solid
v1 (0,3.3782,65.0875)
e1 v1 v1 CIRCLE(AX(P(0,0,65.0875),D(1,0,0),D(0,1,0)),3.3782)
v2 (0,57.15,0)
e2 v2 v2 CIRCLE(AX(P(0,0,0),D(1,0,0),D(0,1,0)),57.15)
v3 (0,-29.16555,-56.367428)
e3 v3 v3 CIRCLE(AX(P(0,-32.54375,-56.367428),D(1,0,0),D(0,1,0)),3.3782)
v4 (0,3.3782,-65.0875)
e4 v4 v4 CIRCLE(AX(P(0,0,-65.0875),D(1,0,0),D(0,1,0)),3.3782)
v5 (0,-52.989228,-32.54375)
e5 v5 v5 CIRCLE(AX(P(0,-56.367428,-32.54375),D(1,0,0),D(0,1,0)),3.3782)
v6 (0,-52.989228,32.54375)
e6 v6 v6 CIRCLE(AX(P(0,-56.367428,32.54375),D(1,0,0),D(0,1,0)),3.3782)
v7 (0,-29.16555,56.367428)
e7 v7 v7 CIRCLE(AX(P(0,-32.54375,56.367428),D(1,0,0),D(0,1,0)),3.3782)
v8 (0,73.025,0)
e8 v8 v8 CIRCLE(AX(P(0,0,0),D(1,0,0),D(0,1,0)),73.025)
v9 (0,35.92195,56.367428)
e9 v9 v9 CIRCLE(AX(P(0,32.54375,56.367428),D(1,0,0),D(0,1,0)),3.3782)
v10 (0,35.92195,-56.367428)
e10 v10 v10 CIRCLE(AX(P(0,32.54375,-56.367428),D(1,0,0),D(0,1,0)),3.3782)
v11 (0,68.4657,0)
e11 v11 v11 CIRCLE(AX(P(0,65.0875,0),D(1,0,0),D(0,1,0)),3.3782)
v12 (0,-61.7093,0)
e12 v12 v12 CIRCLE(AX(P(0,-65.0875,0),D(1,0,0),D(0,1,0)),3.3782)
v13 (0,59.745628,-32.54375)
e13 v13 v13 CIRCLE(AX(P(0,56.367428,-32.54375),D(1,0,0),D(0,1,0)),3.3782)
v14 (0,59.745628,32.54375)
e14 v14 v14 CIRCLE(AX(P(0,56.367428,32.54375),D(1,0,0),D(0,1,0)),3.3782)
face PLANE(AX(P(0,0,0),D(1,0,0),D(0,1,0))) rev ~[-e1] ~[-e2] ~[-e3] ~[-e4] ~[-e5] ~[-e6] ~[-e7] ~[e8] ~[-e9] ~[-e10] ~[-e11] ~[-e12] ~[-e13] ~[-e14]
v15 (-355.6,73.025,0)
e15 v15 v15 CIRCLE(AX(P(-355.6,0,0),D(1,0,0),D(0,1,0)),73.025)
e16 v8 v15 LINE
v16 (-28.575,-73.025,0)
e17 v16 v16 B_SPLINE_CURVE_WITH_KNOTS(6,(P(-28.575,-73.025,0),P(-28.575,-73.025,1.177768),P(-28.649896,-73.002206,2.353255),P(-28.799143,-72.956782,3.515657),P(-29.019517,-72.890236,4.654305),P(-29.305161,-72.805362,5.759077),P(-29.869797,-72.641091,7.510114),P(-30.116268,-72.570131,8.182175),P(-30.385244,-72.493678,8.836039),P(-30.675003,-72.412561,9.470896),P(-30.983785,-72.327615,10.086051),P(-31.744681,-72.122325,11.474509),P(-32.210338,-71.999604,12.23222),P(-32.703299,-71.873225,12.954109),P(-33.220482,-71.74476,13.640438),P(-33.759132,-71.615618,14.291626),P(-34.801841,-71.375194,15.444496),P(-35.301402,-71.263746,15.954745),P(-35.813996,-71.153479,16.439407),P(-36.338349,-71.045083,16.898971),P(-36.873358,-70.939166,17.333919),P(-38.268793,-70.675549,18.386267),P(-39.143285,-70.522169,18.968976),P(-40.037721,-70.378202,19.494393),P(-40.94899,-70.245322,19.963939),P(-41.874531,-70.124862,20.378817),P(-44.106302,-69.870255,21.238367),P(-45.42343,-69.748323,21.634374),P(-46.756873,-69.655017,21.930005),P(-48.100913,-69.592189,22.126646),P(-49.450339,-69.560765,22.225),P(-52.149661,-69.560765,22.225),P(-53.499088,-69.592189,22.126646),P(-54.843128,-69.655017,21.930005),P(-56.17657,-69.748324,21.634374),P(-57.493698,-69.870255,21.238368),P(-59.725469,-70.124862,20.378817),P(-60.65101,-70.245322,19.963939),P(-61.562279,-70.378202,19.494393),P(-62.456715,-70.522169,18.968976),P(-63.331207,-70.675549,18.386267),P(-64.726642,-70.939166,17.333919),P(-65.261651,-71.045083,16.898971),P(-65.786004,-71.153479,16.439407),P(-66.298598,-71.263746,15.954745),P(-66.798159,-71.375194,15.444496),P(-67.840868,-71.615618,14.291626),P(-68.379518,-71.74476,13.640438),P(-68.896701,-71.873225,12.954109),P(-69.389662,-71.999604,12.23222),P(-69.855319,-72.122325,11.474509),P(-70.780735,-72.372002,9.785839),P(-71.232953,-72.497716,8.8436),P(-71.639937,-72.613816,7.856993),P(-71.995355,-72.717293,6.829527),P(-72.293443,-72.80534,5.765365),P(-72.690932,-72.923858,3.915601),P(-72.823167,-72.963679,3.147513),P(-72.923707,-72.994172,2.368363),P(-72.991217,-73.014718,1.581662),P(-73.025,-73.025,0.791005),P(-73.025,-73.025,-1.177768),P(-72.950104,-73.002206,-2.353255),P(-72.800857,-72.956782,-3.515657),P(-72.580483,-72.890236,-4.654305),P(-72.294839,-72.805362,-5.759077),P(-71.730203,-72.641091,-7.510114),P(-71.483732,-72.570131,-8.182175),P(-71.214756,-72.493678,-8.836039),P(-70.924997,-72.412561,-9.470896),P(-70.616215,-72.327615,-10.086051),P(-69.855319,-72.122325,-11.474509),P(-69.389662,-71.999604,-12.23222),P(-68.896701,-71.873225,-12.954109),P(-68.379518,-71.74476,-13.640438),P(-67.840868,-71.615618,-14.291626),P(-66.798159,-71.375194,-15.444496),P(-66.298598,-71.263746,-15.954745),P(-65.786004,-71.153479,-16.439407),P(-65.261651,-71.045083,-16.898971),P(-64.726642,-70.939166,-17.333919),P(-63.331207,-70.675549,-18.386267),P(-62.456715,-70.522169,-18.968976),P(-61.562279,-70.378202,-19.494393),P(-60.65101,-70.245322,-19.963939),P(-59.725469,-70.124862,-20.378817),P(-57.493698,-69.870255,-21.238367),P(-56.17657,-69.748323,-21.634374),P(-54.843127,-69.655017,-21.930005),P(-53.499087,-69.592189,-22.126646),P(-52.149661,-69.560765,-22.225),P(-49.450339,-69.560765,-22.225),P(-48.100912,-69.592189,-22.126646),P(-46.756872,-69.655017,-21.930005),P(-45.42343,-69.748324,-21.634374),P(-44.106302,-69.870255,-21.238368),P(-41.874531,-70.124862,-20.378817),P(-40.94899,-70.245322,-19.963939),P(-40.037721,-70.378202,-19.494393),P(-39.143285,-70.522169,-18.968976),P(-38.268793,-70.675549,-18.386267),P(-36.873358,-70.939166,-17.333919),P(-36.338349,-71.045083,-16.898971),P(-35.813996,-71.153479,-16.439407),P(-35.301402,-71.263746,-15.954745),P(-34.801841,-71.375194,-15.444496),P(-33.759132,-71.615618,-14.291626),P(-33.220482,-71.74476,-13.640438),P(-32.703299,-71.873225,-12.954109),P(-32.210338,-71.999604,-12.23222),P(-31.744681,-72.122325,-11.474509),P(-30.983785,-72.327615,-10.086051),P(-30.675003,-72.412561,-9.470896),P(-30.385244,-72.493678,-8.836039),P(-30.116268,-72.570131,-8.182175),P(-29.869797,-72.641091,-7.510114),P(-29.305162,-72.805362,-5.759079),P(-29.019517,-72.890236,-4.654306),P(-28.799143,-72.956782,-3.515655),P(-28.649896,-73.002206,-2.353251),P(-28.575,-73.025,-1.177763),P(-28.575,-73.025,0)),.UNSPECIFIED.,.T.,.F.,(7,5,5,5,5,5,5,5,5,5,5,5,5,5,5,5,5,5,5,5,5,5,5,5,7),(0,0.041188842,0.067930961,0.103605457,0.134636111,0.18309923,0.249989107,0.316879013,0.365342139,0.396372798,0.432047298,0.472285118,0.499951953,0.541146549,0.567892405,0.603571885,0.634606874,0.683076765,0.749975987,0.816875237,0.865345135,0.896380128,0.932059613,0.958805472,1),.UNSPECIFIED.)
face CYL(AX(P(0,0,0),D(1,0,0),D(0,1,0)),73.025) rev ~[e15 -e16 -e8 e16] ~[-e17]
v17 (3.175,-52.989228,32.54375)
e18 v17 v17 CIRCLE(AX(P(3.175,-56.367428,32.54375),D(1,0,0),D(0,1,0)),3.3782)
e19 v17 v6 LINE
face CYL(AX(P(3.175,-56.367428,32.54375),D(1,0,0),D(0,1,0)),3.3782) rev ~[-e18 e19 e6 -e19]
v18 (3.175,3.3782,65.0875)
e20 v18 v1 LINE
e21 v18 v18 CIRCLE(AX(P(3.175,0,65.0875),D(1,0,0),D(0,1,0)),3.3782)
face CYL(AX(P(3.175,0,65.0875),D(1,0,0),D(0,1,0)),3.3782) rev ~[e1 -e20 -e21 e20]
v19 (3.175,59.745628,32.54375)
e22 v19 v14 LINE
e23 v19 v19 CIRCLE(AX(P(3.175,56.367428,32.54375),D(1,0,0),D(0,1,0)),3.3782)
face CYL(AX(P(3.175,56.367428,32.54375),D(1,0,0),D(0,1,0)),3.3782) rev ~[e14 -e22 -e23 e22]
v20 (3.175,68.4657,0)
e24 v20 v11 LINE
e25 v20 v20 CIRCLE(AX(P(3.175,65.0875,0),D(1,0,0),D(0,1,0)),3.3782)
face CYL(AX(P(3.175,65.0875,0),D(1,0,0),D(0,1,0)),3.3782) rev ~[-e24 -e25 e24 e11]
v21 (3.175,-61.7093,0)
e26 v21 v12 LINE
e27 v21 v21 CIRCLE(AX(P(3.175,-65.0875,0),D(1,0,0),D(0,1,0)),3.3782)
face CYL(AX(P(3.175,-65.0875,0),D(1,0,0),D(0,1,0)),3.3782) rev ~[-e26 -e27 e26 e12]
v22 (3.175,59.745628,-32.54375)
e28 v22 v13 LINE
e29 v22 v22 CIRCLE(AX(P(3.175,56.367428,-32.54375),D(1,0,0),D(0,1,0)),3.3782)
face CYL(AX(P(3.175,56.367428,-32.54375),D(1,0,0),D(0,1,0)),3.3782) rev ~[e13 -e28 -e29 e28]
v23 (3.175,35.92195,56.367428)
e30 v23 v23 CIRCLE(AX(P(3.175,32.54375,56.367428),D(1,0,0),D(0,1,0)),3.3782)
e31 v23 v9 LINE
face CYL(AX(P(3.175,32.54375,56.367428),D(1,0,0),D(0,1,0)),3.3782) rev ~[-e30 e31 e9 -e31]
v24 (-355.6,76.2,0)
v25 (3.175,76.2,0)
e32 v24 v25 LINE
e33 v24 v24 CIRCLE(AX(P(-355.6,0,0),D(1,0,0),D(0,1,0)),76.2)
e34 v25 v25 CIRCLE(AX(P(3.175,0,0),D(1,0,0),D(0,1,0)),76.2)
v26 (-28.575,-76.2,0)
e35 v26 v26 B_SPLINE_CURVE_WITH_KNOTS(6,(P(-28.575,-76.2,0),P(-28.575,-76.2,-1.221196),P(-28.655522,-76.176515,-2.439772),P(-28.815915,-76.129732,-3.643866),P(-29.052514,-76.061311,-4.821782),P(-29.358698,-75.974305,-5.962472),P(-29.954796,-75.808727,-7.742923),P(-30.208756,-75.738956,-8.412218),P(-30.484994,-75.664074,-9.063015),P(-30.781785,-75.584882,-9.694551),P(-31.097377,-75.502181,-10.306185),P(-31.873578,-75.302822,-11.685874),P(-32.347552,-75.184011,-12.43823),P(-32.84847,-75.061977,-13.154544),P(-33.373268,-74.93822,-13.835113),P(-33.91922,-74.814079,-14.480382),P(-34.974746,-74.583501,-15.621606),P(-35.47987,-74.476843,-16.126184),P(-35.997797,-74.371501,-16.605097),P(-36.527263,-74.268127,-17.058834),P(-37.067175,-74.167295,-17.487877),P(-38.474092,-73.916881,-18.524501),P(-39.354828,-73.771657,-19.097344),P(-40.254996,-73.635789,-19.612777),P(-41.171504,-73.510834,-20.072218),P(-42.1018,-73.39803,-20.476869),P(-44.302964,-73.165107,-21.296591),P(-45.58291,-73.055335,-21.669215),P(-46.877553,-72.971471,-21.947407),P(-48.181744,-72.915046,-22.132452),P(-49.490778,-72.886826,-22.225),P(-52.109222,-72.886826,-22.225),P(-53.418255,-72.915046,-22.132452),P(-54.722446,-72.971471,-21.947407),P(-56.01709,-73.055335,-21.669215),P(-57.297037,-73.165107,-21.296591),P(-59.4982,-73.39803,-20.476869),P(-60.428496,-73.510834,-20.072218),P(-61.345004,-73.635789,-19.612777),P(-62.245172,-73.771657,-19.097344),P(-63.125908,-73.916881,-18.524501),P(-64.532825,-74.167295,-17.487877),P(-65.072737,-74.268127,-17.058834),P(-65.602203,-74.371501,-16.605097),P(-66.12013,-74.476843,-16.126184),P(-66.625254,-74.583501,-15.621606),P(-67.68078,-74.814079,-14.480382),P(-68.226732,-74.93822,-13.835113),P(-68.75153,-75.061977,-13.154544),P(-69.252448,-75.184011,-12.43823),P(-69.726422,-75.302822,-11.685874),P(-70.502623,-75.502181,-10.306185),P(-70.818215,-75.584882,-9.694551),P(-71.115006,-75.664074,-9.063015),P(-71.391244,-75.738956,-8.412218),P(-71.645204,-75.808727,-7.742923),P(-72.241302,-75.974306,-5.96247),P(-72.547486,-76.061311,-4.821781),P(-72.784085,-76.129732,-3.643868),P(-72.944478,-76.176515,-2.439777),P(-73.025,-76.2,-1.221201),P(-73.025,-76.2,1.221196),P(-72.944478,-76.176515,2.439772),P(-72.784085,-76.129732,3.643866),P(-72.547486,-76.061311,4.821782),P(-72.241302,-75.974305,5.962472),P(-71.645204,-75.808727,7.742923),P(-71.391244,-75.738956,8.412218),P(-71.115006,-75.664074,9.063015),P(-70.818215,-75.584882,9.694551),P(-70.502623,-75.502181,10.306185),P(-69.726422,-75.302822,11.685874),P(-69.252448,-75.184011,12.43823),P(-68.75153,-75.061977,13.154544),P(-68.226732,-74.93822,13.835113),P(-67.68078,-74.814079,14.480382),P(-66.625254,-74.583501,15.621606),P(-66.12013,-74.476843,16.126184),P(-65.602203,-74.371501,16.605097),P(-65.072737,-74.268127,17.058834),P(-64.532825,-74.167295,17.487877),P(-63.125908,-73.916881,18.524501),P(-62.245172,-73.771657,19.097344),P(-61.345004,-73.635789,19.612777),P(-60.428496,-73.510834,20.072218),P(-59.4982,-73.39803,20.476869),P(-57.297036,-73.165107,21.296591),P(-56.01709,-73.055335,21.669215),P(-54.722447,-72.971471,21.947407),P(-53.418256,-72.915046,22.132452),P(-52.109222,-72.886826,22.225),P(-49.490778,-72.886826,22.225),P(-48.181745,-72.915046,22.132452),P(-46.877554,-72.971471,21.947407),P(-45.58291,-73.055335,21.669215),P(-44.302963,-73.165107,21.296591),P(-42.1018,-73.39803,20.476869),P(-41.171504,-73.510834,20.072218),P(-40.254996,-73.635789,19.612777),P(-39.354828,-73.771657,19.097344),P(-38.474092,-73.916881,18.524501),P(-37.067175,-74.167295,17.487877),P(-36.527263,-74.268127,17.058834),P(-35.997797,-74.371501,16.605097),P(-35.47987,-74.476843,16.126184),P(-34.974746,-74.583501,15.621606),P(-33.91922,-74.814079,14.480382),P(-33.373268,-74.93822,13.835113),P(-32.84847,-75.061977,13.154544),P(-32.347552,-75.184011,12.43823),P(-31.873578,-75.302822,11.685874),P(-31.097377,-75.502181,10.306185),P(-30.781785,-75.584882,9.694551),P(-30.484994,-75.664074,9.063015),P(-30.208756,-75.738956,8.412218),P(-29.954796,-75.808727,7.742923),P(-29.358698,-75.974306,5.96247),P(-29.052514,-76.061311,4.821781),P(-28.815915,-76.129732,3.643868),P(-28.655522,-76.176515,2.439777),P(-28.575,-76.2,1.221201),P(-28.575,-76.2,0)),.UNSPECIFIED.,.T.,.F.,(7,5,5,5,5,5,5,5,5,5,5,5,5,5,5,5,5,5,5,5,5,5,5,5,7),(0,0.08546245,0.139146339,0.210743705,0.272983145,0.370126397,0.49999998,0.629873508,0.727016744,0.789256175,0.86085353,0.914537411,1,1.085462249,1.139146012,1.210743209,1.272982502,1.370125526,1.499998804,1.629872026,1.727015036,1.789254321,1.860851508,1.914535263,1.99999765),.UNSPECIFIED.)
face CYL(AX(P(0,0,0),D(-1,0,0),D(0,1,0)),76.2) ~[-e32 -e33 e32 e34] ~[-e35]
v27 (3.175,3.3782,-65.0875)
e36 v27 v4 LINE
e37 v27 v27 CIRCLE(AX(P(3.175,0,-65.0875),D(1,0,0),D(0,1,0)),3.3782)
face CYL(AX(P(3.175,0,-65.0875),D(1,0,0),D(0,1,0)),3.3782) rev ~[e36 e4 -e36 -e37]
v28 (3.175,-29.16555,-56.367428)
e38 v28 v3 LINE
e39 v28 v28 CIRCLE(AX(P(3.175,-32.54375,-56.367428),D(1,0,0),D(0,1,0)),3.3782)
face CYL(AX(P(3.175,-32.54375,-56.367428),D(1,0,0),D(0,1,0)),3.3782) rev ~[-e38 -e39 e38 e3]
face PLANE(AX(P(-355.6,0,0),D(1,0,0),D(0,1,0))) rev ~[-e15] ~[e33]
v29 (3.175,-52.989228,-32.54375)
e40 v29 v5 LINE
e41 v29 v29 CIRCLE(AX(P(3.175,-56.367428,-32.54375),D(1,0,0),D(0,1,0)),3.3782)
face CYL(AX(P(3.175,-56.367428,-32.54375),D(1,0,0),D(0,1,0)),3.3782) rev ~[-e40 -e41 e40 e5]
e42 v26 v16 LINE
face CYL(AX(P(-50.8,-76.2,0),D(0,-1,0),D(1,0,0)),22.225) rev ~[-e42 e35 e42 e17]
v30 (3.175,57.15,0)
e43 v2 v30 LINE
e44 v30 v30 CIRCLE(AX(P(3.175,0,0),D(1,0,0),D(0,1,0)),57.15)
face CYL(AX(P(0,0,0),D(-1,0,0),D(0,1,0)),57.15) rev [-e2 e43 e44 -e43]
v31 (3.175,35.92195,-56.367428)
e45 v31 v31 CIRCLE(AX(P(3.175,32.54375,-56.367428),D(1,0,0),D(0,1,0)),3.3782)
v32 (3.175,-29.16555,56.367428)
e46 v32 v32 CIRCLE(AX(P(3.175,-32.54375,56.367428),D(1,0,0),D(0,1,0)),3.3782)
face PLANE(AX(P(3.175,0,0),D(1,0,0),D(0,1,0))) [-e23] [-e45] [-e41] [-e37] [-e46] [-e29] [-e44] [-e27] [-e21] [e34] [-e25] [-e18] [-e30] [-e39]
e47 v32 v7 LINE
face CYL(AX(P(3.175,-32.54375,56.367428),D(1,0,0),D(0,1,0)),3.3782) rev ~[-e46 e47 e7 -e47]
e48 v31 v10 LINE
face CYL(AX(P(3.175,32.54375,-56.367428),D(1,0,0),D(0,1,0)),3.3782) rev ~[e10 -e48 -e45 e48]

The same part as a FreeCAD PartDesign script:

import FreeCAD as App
import Part
import Sketcher
from FreeCAD import Vector
Q = App.Units.Quantity

doc = App.newDocument("Part")
params = doc.addObject("Spreadsheet::Sheet", "Params")
for row, (alias, value) in enumerate([
    ("sketch1_diameter", "6 in"),
    ("sketch1_diameter2", "5.75 in"),
    ("pad1_length", "14 in"),
    ("sketch2_diameter", "6 in"),
    ("sketch2_diameter2", "4.5 in"),
    ("pad2_length", "0.125 in"),
    ("sketch3_diameter", "0.266 in"),
    ("sketch4_diameter", "1.75 in"),
    ("pocket2_length", "7.639235 mm"),
], start=1):
    params.set(f"A{row}", alias)
    params.set(f"B{row}", "=" + value)
    params.setAlias(f"B{row}", alias)

body = doc.addObject("PartDesign::Body", "Body")

sketch1 = body.newObject("Sketcher::SketchObject", "Sketch")
sketch1.AttachmentSupport = (doc.getObject("YZ_Plane"), [""])
sketch1.MapMode = "FlatFace"
sketch1.addGeometry([
    Part.Circle(Vector(0, 0, 0), Vector(0, 0, 1), 76),
    Part.Circle(Vector(0, 0, 0), Vector(0, 0, 1), 73),
], False)
sketch1.addConstraint([
    Sketcher.Constraint("Coincident", 0, 3, -1, 1),
    Sketcher.Constraint("Coincident", 1, 3, -1, 1),
    Sketcher.Constraint("Diameter", 0, Q("6 in")),
    Sketcher.Constraint("Diameter", 1, Q("5.75 in")),
])
sketch1.setExpression("Constraints[2]", "Params.sketch1_diameter")
sketch1.setExpression("Constraints[3]", "Params.sketch1_diameter2")
pad1 = body.newObject("PartDesign::Pad", "Pad")
pad1.Profile = sketch1
pad1.setExpression("Length", "Params.pad1_length")
pad1.Reversed = True

sketch2 = body.newObject("Sketcher::SketchObject", "Sketch001")
sketch2.AttachmentSupport = (doc.getObject("YZ_Plane"), [""])
sketch2.MapMode = "FlatFace"
sketch2.addGeometry([
    Part.Circle(Vector(0, 0, 0), Vector(0, 0, 1), 76),
    Part.Circle(Vector(0, 0, 0), Vector(0, 0, 1), 57),
], False)
sketch2.addConstraint([
    Sketcher.Constraint("Coincident", 0, 3, -1, 1),
    Sketcher.Constraint("Coincident", 1, 3, -1, 1),
    Sketcher.Constraint("Diameter", 0, Q("6 in")),
    Sketcher.Constraint("Diameter", 1, Q("4.5 in")),
])
sketch2.setExpression("Constraints[2]", "Params.sketch2_diameter")
sketch2.setExpression("Constraints[3]", "Params.sketch2_diameter2")
pad2 = body.newObject("PartDesign::Pad", "Pad001")
pad2.Profile = sketch2
pad2.setExpression("Length", "Params.pad2_length")

sketch3 = body.newObject("Sketcher::SketchObject", "Sketch002")
sketch3.AttachmentSupport = (doc.getObject("YZ_Plane"), [""])
sketch3.MapMode = "FlatFace"
sketch3.AttachmentOffset = App.Placement(Vector(0, 0, 0.125 * 25.4), App.Rotation())
sketch3.addGeometry([
    Part.Circle(Vector(0, 65.1, 0), Vector(0, 0, 1), 3.4),
    Part.Circle(Vector(32.5, 56.4, 0), Vector(0, 0, 1), 3.4),
    Part.Circle(Vector(56.4, 32.5, 0), Vector(0, 0, 1), 3.4),
    Part.Circle(Vector(65.1, 0, 0), Vector(0, 0, 1), 3.4),
    Part.Circle(Vector(56.4, -32.5, 0), Vector(0, 0, 1), 3.4),
    Part.Circle(Vector(32.5, -56.4, 0), Vector(0, 0, 1), 3.4),
    Part.Circle(Vector(0, -65.1, 0), Vector(0, 0, 1), 3.4),
    Part.Circle(Vector(-32.5, -56.4, 0), Vector(0, 0, 1), 3.4),
    Part.Circle(Vector(-56.4, -32.5, 0), Vector(0, 0, 1), 3.4),
    Part.Circle(Vector(-65.1, 0, 0), Vector(0, 0, 1), 3.4),
    Part.Circle(Vector(-56.4, 32.5, 0), Vector(0, 0, 1), 3.4),
    Part.Circle(Vector(-32.5, 56.4, 0), Vector(0, 0, 1), 3.4),
], False)
sketch3.addConstraint([
    Sketcher.Constraint("Equal", 0, 1),
    Sketcher.Constraint("Equal", 1, 2),
    Sketcher.Constraint("Equal", 2, 3),
    Sketcher.Constraint("Equal", 3, 4),
    Sketcher.Constraint("Equal", 4, 5),
    Sketcher.Constraint("Equal", 5, 6),
    Sketcher.Constraint("Equal", 6, 7),
    Sketcher.Constraint("Equal", 7, 8),
    Sketcher.Constraint("Equal", 8, 9),
    Sketcher.Constraint("Equal", 9, 10),
    Sketcher.Constraint("Equal", 10, 11),
    Sketcher.Constraint("Symmetric", 0, 3, 6, 3, -1, 1),
    Sketcher.Constraint("Symmetric", 1, 3, 7, 3, -1, 1),
    Sketcher.Constraint("Symmetric", 2, 3, 8, 3, -1, 1),
    Sketcher.Constraint("Symmetric", 3, 3, 9, 3, -1, 1),
    Sketcher.Constraint("Symmetric", 4, 3, 10, 3, -1, 1),
    Sketcher.Constraint("Symmetric", 5, 3, 11, 3, -1, 1),
    Sketcher.Constraint("Symmetric", 5, 3, 7, 3, -2),
    Sketcher.Constraint("Symmetric", 4, 3, 8, 3, -2),
    Sketcher.Constraint("PointOnObject", 0, 3, -2),
    Sketcher.Constraint("PointOnObject", 3, 3, -1),
    Sketcher.Constraint("Diameter", 0, Q("0.266 in")),
    Sketcher.Constraint("DistanceY", -1, 1, 0, 3, Q("2.5625 in")),
    Sketcher.Constraint("DistanceX", -1, 1, 1, 3, Q("1.28125 in")),
    Sketcher.Constraint("DistanceY", -1, 1, 2, 3, Q("1.28125 in")),
    Sketcher.Constraint("DistanceX", -1, 1, 3, 3, Q("2.5625 in")),
    Sketcher.Constraint("DistanceY", -1, 1, 1, 3, Q("56.367428 mm")),
    Sketcher.Constraint("DistanceX", -1, 1, 2, 3, Q("56.367428 mm")),
])
sketch3.setExpression("Constraints[21]", "Params.sketch3_diameter")
pocket1 = body.newObject("PartDesign::Pocket", "Pocket")
pocket1.Profile = sketch3
pocket1.Type = "ThroughAll"

sketch4 = body.newObject("Sketcher::SketchObject", "Sketch003")
sketch4.AttachmentSupport = (doc.getObject("XZ_Plane"), [""])
sketch4.MapMode = "FlatFace"
sketch4.AttachmentOffset = App.Placement(Vector(0, 0, 3 * 25.4), App.Rotation())
sketch4.addGeometry(Part.Circle(Vector(-51, 0, 0), Vector(0, 0, 1), 22), False)
sketch4.addConstraint([
    Sketcher.Constraint("PointOnObject", 0, 3, -1),
    Sketcher.Constraint("Diameter", 0, Q("1.75 in")),
    Sketcher.Constraint("DistanceX", 0, 3, -1, 1, Q("2 in")),
])
sketch4.setExpression("Constraints[1]", "Params.sketch4_diameter")
pocket2 = body.newObject("PartDesign::Pocket", "Pocket001")
pocket2.Profile = sketch4
pocket2.setExpression("Length", "Params.pocket2_length")

doc.recompute()
